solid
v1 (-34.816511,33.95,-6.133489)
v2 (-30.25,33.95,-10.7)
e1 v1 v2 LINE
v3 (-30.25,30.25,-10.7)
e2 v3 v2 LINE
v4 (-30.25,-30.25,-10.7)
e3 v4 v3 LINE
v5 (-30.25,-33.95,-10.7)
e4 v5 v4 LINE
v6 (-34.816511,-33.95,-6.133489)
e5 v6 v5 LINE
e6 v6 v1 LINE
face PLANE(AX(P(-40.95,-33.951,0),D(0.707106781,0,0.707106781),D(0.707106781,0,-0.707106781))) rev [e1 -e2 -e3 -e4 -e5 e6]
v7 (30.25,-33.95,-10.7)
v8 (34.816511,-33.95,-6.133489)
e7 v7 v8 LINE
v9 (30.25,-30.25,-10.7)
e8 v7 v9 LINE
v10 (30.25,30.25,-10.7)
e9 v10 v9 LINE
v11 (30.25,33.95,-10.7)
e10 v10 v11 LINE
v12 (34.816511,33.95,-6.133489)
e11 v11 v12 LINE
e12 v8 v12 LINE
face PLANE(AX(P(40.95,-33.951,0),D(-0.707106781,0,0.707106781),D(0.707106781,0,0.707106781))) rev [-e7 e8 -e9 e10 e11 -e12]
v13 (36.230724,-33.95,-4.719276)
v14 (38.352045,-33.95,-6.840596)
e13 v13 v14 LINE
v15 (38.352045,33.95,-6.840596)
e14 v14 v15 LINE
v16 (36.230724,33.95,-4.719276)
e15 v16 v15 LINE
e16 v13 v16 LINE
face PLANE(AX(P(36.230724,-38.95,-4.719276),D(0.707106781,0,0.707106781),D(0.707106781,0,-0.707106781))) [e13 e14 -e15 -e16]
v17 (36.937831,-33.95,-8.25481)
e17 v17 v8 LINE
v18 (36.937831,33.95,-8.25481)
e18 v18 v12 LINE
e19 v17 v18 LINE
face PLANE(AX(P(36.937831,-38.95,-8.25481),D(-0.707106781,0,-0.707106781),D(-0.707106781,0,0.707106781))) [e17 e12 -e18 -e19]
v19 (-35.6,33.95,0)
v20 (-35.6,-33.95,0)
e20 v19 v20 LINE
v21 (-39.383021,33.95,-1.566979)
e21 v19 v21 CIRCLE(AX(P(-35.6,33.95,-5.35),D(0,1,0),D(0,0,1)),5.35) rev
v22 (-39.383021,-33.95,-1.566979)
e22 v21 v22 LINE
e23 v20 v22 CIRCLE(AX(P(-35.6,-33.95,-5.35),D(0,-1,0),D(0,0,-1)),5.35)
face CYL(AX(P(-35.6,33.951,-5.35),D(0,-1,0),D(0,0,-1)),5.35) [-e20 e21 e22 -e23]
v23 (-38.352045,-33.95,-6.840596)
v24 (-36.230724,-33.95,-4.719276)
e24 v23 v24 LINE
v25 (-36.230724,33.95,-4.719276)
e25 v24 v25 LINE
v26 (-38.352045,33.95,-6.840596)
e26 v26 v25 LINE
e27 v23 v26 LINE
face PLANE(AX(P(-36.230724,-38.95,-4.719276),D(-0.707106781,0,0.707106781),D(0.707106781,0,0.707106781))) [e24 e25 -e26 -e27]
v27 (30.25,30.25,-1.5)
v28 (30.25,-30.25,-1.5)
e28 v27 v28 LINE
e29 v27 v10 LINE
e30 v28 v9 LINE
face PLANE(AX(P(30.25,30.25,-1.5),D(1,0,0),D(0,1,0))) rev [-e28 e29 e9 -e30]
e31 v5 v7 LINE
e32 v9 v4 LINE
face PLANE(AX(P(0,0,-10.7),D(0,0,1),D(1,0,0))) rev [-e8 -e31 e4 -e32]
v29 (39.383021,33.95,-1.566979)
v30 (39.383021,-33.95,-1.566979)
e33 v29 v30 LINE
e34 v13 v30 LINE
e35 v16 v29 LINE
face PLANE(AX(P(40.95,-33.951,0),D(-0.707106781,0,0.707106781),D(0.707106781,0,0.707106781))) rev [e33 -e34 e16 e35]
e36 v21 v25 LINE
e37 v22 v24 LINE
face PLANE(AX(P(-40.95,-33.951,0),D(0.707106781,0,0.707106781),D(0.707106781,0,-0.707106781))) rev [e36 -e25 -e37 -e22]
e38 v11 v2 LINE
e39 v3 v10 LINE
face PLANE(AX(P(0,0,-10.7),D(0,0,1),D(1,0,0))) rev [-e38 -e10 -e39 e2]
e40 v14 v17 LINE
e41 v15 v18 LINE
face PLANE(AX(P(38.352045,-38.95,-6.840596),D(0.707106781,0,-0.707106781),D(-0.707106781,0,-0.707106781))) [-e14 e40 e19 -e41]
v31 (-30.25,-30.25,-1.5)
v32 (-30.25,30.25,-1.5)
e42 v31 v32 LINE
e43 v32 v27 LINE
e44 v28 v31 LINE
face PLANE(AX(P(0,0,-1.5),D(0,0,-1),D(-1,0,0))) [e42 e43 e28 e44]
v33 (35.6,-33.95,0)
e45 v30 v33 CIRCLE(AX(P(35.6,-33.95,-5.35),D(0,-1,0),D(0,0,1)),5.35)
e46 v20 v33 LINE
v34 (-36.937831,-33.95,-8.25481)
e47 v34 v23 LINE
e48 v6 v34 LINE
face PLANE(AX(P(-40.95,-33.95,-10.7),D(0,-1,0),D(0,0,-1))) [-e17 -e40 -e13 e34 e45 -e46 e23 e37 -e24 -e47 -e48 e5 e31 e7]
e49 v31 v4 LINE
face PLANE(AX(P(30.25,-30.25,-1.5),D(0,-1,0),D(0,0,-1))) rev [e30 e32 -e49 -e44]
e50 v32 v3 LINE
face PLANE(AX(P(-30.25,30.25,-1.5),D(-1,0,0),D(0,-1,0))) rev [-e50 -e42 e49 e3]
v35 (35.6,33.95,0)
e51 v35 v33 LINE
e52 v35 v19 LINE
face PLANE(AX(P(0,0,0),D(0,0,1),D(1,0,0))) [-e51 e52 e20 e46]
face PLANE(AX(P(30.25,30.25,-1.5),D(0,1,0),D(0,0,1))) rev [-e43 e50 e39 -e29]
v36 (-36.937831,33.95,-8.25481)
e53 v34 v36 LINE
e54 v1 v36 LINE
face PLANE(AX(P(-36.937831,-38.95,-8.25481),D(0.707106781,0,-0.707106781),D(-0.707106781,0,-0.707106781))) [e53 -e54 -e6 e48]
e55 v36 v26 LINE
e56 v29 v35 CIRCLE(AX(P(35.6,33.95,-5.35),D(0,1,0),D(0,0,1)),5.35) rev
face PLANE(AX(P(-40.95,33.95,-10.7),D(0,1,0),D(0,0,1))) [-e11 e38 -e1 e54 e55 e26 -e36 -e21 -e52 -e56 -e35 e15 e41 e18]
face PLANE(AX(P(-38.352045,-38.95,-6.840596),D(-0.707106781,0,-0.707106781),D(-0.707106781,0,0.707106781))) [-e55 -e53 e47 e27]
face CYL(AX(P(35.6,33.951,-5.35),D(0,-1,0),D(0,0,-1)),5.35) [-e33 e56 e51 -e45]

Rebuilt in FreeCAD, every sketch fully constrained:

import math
import FreeCAD as App
import Part
import Sketcher
Q = App.Units.Quantity


def add_polygon(sketch, points):
    """Adds a closed chain of lines whose ends are joined by coincident constraints."""
    first, n = sketch.GeometryCount, len(points)
    for a, b in zip(points, points[1:] + points[:1]):
        sketch.addGeometry(Part.LineSegment(App.Vector(*a, 0), App.Vector(*b, 0)), False)
    for i in range(n):
        sketch.addConstraint(Sketcher.Constraint("Coincident", first + i, 2, first + (i + 1) % n, 1))

doc = App.newDocument("Part")
params = doc.addObject("Spreadsheet::Sheet", "Params")
for row, (alias, value) in enumerate([
    ("sketch1_width", "81.9 mm"),
    ("sketch1_height", "67.9 mm"),
    ("pad1_length", "10.7 mm"),
    ("sketch2_width", "60.5 mm"),
    ("pocket1_length", "9.2 mm"),
    ("sketch3_width", "10.7 mm"),
    ("sketch4_width", "10.7 mm"),
    ("sketch5_radius", "5.35 mm"),
    ("sketch5_width", "5.35 mm"),
    ("sketch6_radius", "5.35 mm"),
    ("sketch6_width", "5.35 mm"),
    ("sketch7_length", "2 mm"),
    ("sketch7_length2", "3 mm"),
    ("pad2_length", "67.9 mm"),
], start=1):
    params.set(f"A{row}", alias)
    params.set(f"B{row}", "=" + value)
    params.setAlias(f"B{row}", alias)

body = doc.addObject("PartDesign::Body", "Body")

sketch1 = body.newObject("Sketcher::SketchObject", "Sketch")
sketch1.AttachmentSupport = (doc.getObject("XY_Plane"), [""])
sketch1.MapMode = "FlatFace"
add_polygon(sketch1, [(-40.95, 33.95), (-40.95, -33.95), (40.95, -33.95), (40.95, 33.95)])
sketch1.addConstraint([
    Sketcher.Constraint("Vertical", 0),
    Sketcher.Constraint("Horizontal", 1),
    Sketcher.Constraint("Vertical", 2),
    Sketcher.Constraint("Horizontal", 3),
    Sketcher.Constraint("Symmetric", 0, 2, 2, 2, -1, 1),
    Sketcher.Constraint("DistanceX", 1, 1, 1, 2, 81.9),
    Sketcher.Constraint("DistanceY", 0, 2, 0, 1, 67.9),
])
sketch1.setExpression("Constraints[9]", "Params.sketch1_width")
sketch1.setExpression("Constraints[10]", "Params.sketch1_height")
pad1 = body.newObject("PartDesign::Pad", "Pad")
pad1.Profile = sketch1
pad1.setExpression("Length", "Params.pad1_length")
pad1.Reversed = True

sketch2 = body.newObject("Sketcher::SketchObject", "Sketch001")
sketch2.AttachmentSupport = (doc.getObject("XY_Plane"), [""])
sketch2.MapMode = "FlatFace"
sketch2.AttachmentOffset = App.Placement(App.Vector(0, 0, -10.7), App.Rotation())
add_polygon(sketch2, [(30.25, 30.25), (30.25, -30.25), (-30.25, -30.25), (-30.25, 30.25)])
sketch2.addConstraint([
    Sketcher.Constraint("Vertical", 0),
    Sketcher.Constraint("Horizontal", 1),
    Sketcher.Constraint("Vertical", 2),
    Sketcher.Constraint("Horizontal", 3),
    Sketcher.Constraint("Symmetric", 0, 2, 2, 2, -1, 1),
    Sketcher.Constraint("Equal", 3, 0),
    Sketcher.Constraint("DistanceX", 1, 2, 1, 1, 60.5),
])
sketch2.setExpression("Constraints[10]", "Params.sketch2_width")
pocket1 = body.newObject("PartDesign::Pocket", "Pocket")
pocket1.Profile = sketch2
pocket1.setExpression("Length", "Params.pocket1_length")
pocket1.Reversed = True

sketch3 = body.newObject("Sketcher::SketchObject", "Sketch002")
sketch3.AttachmentSupport = (doc.getObject("XZ_Plane"), [""])
sketch3.MapMode = "FlatFace"
sketch3.AttachmentOffset = App.Placement(App.Vector(0, 0, -33.95), App.Rotation())
add_polygon(sketch3, [(-40.95, 0), (-30.25, -10.7), (-40.95, -10.7)])
sketch3.addConstraint([
    Sketcher.Constraint("Horizontal", 1),
    Sketcher.Constraint("Vertical", 2),
    Sketcher.Constraint("PointOnObject", 2, 2, -1),
    Sketcher.Constraint("Equal", 1, 2),
    Sketcher.Constraint("DistanceX", 1, 2, 1, 1, 10.7),
    Sketcher.Constraint("DistanceX", 0, 2, -1, 1, 30.25),
])
sketch3.setExpression("Constraints[7]", "Params.sketch3_width")
pocket2 = body.newObject("PartDesign::Pocket", "Pocket001")
pocket2.Profile = sketch3
pocket2.Type = "UpToFirst"
pocket2.Reversed = True

sketch4 = body.newObject("Sketcher::SketchObject", "Sketch003")
sketch4.AttachmentSupport = (doc.getObject("XZ_Plane"), [""])
sketch4.MapMode = "FlatFace"
sketch4.AttachmentOffset = App.Placement(App.Vector(0, 0, -33.95), App.Rotation())
add_polygon(sketch4, [(40.95, 0), (40.95, -10.7), (30.25, -10.7)])
sketch4.addConstraint([
    Sketcher.Constraint("Vertical", 0),
    Sketcher.Constraint("Horizontal", 1),
    Sketcher.Constraint("PointOnObject", 2, 2, -1),
    Sketcher.Constraint("Equal", 1, 0),
    Sketcher.Constraint("DistanceX", 1, 2, 1, 1, 10.7),
    Sketcher.Constraint("DistanceX", -1, 1, 0, 2, 40.95),
])
sketch4.setExpression("Constraints[7]", "Params.sketch4_width")
pocket3 = body.newObject("PartDesign::Pocket", "Pocket002")
pocket3.Profile = sketch4
pocket3.Type = "UpToFirst"
pocket3.Reversed = True

sketch5 = body.newObject("Sketcher::SketchObject", "Sketch004")
sketch5.AttachmentSupport = (doc.getObject("XZ_Plane"), [""])
sketch5.MapMode = "FlatFace"
sketch5.AttachmentOffset = App.Placement(App.Vector(0, 0, 33.95), App.Rotation())
sketch5.addGeometry([
    Part.LineSegment(App.Vector(40.95, 0, 0), App.Vector(39.383021, -1.566979, 0)),
    Part.ArcOfCircle(Part.Circle(App.Vector(35.6, -5.35, 0), App.Vector(0, 0, 1), 5.35), math.radians(45), math.radians(90)),
    Part.LineSegment(App.Vector(35.6, 0, 0), App.Vector(40.95, 0, 0)),
], False)
sketch5.addConstraint([
    Sketcher.Constraint("Coincident", 0, 2, 1, 1),
    Sketcher.Constraint("Tangent", 1, 2, 2, 1),
    Sketcher.Constraint("Coincident", 2, 2, 0, 1),
    Sketcher.Constraint("Horizontal", 2),
    Sketcher.Constraint("PointOnObject", 1, 2, -1),
    Sketcher.Constraint("Angle", 0, Q("-135 deg")),
    Sketcher.Constraint("Radius", 1, 5.35),
    Sketcher.Constraint("DistanceX", 2, 1, 2, 2, 5.35),
    Sketcher.Constraint("DistanceX", -1, 1, 1, 3, 35.6),
])
sketch5.setExpression("Constraints[6]", "Params.sketch5_radius")
sketch5.setExpression("Constraints[7]", "Params.sketch5_width")
pocket4 = body.newObject("PartDesign::Pocket", "Pocket003")
pocket4.Profile = sketch5
pocket4.Type = "UpToFirst"

sketch6 = body.newObject("Sketcher::SketchObject", "Sketch005")
sketch6.AttachmentSupport = (doc.getObject("XZ_Plane"), [""])
sketch6.MapMode = "FlatFace"
sketch6.AttachmentOffset = App.Placement(App.Vector(0, 0, 33.95), App.Rotation())
sketch6.addGeometry([
    Part.LineSegment(App.Vector(-40.95, 0, 0), App.Vector(-35.6, 0, 0)),
    Part.ArcOfCircle(Part.Circle(App.Vector(-35.6, -5.35, 0), App.Vector(0, 0, 1), 5.35), math.radians(90), math.radians(135)),
    Part.LineSegment(App.Vector(-39.383021, -1.566979, 0), App.Vector(-40.95, 0, 0)),
], False)
sketch6.addConstraint([
    Sketcher.Constraint("Tangent", 0, 2, 1, 1),
    Sketcher.Constraint("Coincident", 1, 2, 2, 1),
    Sketcher.Constraint("Coincident", 2, 2, 0, 1),
    Sketcher.Constraint("Horizontal", 0),
    Sketcher.Constraint("PointOnObject", 0, 2, -1),
    Sketcher.Constraint("Angle", 2, Q("135 deg")),
    Sketcher.Constraint("Radius", 1, 5.35),
    Sketcher.Constraint("DistanceX", 0, 1, 0, 2, 5.35),
    Sketcher.Constraint("DistanceX", 1, 3, -1, 1, 35.6),
])
sketch6.setExpression("Constraints[6]", "Params.sketch6_radius")
sketch6.setExpression("Constraints[7]", "Params.sketch6_width")
pocket5 = body.newObject("PartDesign::Pocket", "Pocket004")
pocket5.Profile = sketch6
pocket5.Type = "UpToFirst"

sketch7 = body.newObject("Sketcher::SketchObject", "Sketch006")
sketch7.AttachmentSupport = (doc.getObject("XZ_Plane"), [""])
sketch7.MapMode = "FlatFace"
sketch7.AttachmentOffset = App.Placement(App.Vector(0, 0, -33.95), App.Rotation())
add_polygon(sketch7, [(-36.937831, -8.25481), (-38.352045, -6.840596), (-36.230724, -4.719276), (-34.816511, -6.133489)])
add_polygon(sketch7, [(36.937831, -8.25481), (34.816511, -6.133489), (36.230724, -4.719276), (38.352045, -6.840596)])
sketch7.addConstraint([
    Sketcher.Constraint("Symmetric", 2, 2, 4, 2, -2),
    Sketcher.Constraint("Symmetric", 1, 2, 5, 2, -2),
    Sketcher.Constraint("Symmetric", 0, 2, 6, 2, -2),
    Sketcher.Constraint("Symmetric", 3, 2, 7, 2, -2),
    Sketcher.Constraint("Perpendicular", 0, 1),
    Sketcher.Constraint("Perpendicular", 1, 2),
    Sketcher.Constraint("Perpendicular", 2, 3),
    Sketcher.Constraint("Perpendicular", 3, 4),
    Sketcher.Constraint("Distance", 0, 2.0),
    Sketcher.Constraint("Distance", 1, 3.0),
    Sketcher.Constraint("DistanceX", 2, 2, -1, 1, 34.816511),
    Sketcher.Constraint("DistanceY", 2, 2, -1, 1, 6.133489),
])
sketch7.setExpression("Constraints[16]", "Params.sketch7_length")
sketch7.setExpression("Constraints[17]", "Params.sketch7_length2")
pad2 = body.newObject("PartDesign::Pad", "Pad001")
pad2.Profile = sketch7
pad2.setExpression("Length", "Params.pad2_length")

doc.recompute()
